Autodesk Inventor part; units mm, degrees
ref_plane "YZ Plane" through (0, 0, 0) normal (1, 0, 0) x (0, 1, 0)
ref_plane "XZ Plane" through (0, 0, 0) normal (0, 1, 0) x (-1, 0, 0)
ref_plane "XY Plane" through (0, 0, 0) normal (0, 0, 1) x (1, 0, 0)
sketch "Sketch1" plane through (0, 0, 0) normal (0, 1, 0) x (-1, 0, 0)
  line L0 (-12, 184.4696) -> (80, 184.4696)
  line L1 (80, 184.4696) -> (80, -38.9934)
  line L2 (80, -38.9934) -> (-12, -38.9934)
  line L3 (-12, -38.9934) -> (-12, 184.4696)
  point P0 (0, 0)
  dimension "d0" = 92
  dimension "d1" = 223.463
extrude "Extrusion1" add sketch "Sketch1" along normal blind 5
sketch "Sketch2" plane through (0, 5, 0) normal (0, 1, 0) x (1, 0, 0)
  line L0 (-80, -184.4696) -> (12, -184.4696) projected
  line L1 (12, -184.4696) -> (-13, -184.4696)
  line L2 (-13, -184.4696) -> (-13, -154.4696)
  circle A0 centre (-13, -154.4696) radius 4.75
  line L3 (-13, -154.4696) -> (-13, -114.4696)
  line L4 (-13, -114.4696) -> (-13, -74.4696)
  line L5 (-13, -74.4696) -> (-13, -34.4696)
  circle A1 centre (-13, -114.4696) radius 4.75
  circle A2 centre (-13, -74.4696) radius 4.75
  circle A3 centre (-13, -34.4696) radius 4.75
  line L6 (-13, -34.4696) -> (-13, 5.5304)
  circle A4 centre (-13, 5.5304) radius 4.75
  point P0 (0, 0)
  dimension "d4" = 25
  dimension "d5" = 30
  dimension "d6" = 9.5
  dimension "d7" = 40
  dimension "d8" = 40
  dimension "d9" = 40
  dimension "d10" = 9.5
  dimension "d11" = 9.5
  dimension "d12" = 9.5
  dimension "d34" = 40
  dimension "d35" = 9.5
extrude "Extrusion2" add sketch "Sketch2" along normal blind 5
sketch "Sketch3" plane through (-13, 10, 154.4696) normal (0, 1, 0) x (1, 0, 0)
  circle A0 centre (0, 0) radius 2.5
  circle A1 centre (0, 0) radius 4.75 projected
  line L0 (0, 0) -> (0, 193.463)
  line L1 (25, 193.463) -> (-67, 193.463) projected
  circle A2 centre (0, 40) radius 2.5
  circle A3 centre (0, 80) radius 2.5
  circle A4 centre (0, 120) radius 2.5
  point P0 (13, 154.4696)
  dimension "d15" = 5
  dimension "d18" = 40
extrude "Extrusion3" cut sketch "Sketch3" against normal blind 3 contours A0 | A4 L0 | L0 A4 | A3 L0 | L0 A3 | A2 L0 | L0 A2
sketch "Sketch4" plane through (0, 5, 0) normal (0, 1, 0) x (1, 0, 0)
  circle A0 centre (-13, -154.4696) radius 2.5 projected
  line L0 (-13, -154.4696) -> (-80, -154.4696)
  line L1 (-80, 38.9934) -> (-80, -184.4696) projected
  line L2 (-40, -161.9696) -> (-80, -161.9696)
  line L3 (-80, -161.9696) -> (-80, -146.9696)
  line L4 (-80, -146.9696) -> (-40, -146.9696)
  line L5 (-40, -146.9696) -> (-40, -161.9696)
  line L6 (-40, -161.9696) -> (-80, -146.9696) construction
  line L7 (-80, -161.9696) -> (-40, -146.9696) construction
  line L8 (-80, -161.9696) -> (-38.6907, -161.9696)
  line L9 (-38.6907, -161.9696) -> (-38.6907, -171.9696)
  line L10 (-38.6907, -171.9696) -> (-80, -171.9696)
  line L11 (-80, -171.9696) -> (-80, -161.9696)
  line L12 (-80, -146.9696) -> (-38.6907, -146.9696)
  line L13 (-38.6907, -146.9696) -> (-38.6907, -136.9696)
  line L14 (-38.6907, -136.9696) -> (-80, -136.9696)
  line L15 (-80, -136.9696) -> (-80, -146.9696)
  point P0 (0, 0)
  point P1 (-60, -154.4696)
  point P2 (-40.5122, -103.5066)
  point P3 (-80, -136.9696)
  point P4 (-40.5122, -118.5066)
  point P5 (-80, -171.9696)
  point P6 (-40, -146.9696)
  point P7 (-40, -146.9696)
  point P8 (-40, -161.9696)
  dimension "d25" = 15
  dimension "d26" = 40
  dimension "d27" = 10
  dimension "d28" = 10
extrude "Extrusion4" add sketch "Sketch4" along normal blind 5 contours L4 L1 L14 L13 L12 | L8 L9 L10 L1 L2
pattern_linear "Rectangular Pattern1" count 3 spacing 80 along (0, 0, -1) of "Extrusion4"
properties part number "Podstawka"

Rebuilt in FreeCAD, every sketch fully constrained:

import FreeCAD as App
import Part
import Sketcher
from FreeCAD import Vector

doc = App.newDocument("Part")
body = doc.addObject("PartDesign::Body", "Body")

# Sketch on XZ plane
sketch1 = body.newObject("Sketcher::SketchObject", "Sketch")
sketch1.AttachmentSupport = (doc.getObject("XZ_Plane"), [""])
sketch1.MapMode = "FlatFace"
sketch1.addGeometry([
    Part.LineSegment(Vector(-80, 184.4696, 0), Vector(12, 184.4696, 0)),
    Part.LineSegment(Vector(12, 184.4696, 0), Vector(12, -38.9934, 0)),
    Part.LineSegment(Vector(12, -38.9934, 0), Vector(-80, -38.9934, 0)),
    Part.LineSegment(Vector(-80, -38.9934, 0), Vector(-80, 184.4696, 0)),
], False)
sketch1.addConstraint([
    Sketcher.Constraint("Coincident", 0, 2, 1, 1),
    Sketcher.Constraint("Coincident", 1, 2, 2, 1),
    Sketcher.Constraint("Coincident", 2, 2, 3, 1),
    Sketcher.Constraint("Coincident", 3, 2, 0, 1),
    Sketcher.Constraint("Horizontal", 0),
    Sketcher.Constraint("Vertical", 1),
    Sketcher.Constraint("Horizontal", 2),
    Sketcher.Constraint("Vertical", 3),
    Sketcher.Constraint("DistanceX", 0, 1, 0, 2, 92.0),
    Sketcher.Constraint("DistanceY", 1, 2, 1, 1, 223.463),
    Sketcher.Constraint("DistanceX", -1, 1, 0, 2, 12.0),
    Sketcher.Constraint("DistanceY", -1, 1, 0, 2, 184.4696),
])
pad1 = body.newObject("PartDesign::Pad", "Pad")
pad1.Profile = sketch1
pad1.Length = 5
pad1.Reversed = True

# Sketch on XZ plane
sketch2 = body.newObject("Sketcher::SketchObject", "Sketch001")
sketch2.AttachmentSupport = (doc.getObject("XZ_Plane"), [""])
sketch2.MapMode = "FlatFace"
sketch2.AttachmentOffset = App.Placement(Vector(0, 0, -5), App.Rotation())
sketch2.addGeometry([
    Part.Circle(Vector(-13, 154.4696, 0), Vector(0, 0, 1), 4.75),  # 0
    Part.Circle(Vector(-13, -5.5304, 0), Vector(0, 0, 1), 4.75),  # 1
    Part.Circle(Vector(-13, 34.4696, 0), Vector(0, 0, 1), 4.75),  # 2
    Part.Circle(Vector(-13, 74.4696, 0), Vector(0, 0, 1), 4.75),  # 3
    Part.Circle(Vector(-13, 114.4696, 0), Vector(0, 0, 1), 4.75),  # 4
], False)
sketch2.addConstraint([
    Sketcher.Constraint("Equal", 0, 1),
    Sketcher.Constraint("Equal", 1, 2),
    Sketcher.Constraint("Equal", 2, 3),
    Sketcher.Constraint("Equal", 3, 4),
    Sketcher.Constraint("Vertical", 0, 3, 1, 3),
    Sketcher.Constraint("Vertical", 1, 3, 2, 3),
    Sketcher.Constraint("Vertical", 2, 3, 3, 3),
    Sketcher.Constraint("Vertical", 3, 3, 4, 3),
    Sketcher.Constraint("Diameter", 0, 9.5),
    Sketcher.Constraint("DistanceY", 1, 3, 2, 3, 40.0),
    Sketcher.Constraint("DistanceY", 2, 3, 3, 3, 40.0),
    Sketcher.Constraint("DistanceY", 3, 3, 4, 3, 40.0),
    Sketcher.Constraint("DistanceY", 4, 3, 0, 3, 40.0),
    Sketcher.Constraint("DistanceX", 0, 3, -1, 1, 13.0),
    Sketcher.Constraint("DistanceY", -1, 1, 0, 3, 154.4696),
])
pad2 = body.newObject("PartDesign::Pad", "Pad001")
pad2.Profile = sketch2
pad2.Length = 5
pad2.Reversed = True

# Sketch on XZ plane
sketch3 = body.newObject("Sketcher::SketchObject", "Sketch002")
sketch3.AttachmentSupport = (doc.getObject("XZ_Plane"), [""])
sketch3.MapMode = "FlatFace"
sketch3.AttachmentOffset = App.Placement(Vector(0, 0, -10), App.Rotation())
sketch3.addGeometry([
    Part.Circle(Vector(-13, 154.4696, 0), Vector(0, 0, 1), 2.5),
    Part.Circle(Vector(-13, 34.4696, 0), Vector(0, 0, 1), 2.5),
    Part.Circle(Vector(-13, 74.4696, 0), Vector(0, 0, 1), 2.5),
    Part.Circle(Vector(-13, 114.4696, 0), Vector(0, 0, 1), 2.5),
], False)
sketch3.addConstraint([
    Sketcher.Constraint("Equal", 0, 1),
    Sketcher.Constraint("Equal", 1, 2),
    Sketcher.Constraint("Equal", 2, 3),
    Sketcher.Constraint("Vertical", 0, 3, 1, 3),
    Sketcher.Constraint("Vertical", 1, 3, 2, 3),
    Sketcher.Constraint("Vertical", 2, 3, 3, 3),
    Sketcher.Constraint("Diameter", 0, 5.0),
    Sketcher.Constraint("DistanceY", 1, 3, 2, 3, 40.0),
    Sketcher.Constraint("DistanceY", 2, 3, 3, 3, 40.0),
    Sketcher.Constraint("DistanceY", 3, 3, 0, 3, 40.0),
    Sketcher.Constraint("DistanceX", 0, 3, -1, 1, 13.0),
    Sketcher.Constraint("DistanceY", -1, 1, 0, 3, 154.4696),
])
pocket1 = body.newObject("PartDesign::Pocket", "Pocket")
pocket1.Profile = sketch3
pocket1.Length = 3
pocket1.Reversed = True

# Sketch on XZ plane
sketch4 = body.newObject("Sketcher::SketchObject", "Sketch003")
sketch4.AttachmentSupport = (doc.getObject("XZ_Plane"), [""])
sketch4.MapMode = "FlatFace"
sketch4.AttachmentOffset = App.Placement(Vector(0, 0, -5), App.Rotation())
sketch4.addGeometry([
    Part.LineSegment(Vector(-80, 146.9696, 0), Vector(-38.6907, 146.9696, 0)),  # 0
    Part.LineSegment(Vector(-38.6907, 146.9696, 0), Vector(-38.6907, 136.9696, 0)),  # 1
    Part.LineSegment(Vector(-38.6907, 136.9696, 0), Vector(-80, 136.9696, 0)),  # 2
    Part.LineSegment(Vector(-80, 136.9696, 0), Vector(-80, 146.9696, 0)),  # 3
    Part.LineSegment(Vector(-38.6907, 161.9696, 0), Vector(-80, 161.9696, 0)),  # 4
    Part.LineSegment(Vector(-80, 161.9696, 0), Vector(-80, 171.9696, 0)),  # 5
    Part.LineSegment(Vector(-80, 171.9696, 0), Vector(-38.6907, 171.9696, 0)),  # 6
    Part.LineSegment(Vector(-38.6907, 171.9696, 0), Vector(-38.6907, 161.9696, 0)),  # 7
], False)
sketch4.addConstraint([
    Sketcher.Constraint("Coincident", 0, 2, 1, 1),
    Sketcher.Constraint("Coincident", 1, 2, 2, 1),
    Sketcher.Constraint("Coincident", 2, 2, 3, 1),
    Sketcher.Constraint("Coincident", 3, 2, 0, 1),
    Sketcher.Constraint("Coincident", 4, 2, 5, 1),
    Sketcher.Constraint("Coincident", 5, 2, 6, 1),
    Sketcher.Constraint("Coincident", 6, 2, 7, 1),
    Sketcher.Constraint("Coincident", 7, 2, 4, 1),
    Sketcher.Constraint("Horizontal", 0),
    Sketcher.Constraint("Vertical", 1),
    Sketcher.Constraint("Horizontal", 2),
    Sketcher.Constraint("Vertical", 3),
    Sketcher.Constraint("Horizontal", 4),
    Sketcher.Constraint("Vertical", 5),
    Sketcher.Constraint("Horizontal", 6),
    Sketcher.Constraint("Vertical", 7),
    Sketcher.Constraint("Vertical", 3, 2, 4, 2),
    Sketcher.Constraint("Vertical", 1, 2, 6, 2),
    Sketcher.Constraint("Equal", 3, 5),
    Sketcher.Constraint("DistanceY", 1, 2, 1, 1, 10.0),
    Sketcher.Constraint("DistanceY", 3, 2, 4, 2, 15.0),
    Sketcher.Constraint("DistanceX", 2, 2, -1, 1, 80.0),
    Sketcher.Constraint("DistanceX", 0, 1, 0, 2, 41.3093),
    Sketcher.Constraint("DistanceY", -1, 1, 0, 2, 146.9696),
])
pad3 = body.newObject("PartDesign::Pad", "Pad002")
pad3.Profile = sketch4
pad3.Length = 5
pad3.Reversed = True
doc.recompute()

linearpattern = body.newObject("PartDesign::LinearPattern", "LinearPattern")
linearpattern.Originals = [pad3]
linearpattern.Direction = (doc.getObject("Z_Axis"), [""])
linearpattern.Mode = "offset"
linearpattern.Offset = 80
linearpattern.Occurrences = 3
linearpattern.Reversed = True
body.Tip = linearpattern

doc.recompute()
